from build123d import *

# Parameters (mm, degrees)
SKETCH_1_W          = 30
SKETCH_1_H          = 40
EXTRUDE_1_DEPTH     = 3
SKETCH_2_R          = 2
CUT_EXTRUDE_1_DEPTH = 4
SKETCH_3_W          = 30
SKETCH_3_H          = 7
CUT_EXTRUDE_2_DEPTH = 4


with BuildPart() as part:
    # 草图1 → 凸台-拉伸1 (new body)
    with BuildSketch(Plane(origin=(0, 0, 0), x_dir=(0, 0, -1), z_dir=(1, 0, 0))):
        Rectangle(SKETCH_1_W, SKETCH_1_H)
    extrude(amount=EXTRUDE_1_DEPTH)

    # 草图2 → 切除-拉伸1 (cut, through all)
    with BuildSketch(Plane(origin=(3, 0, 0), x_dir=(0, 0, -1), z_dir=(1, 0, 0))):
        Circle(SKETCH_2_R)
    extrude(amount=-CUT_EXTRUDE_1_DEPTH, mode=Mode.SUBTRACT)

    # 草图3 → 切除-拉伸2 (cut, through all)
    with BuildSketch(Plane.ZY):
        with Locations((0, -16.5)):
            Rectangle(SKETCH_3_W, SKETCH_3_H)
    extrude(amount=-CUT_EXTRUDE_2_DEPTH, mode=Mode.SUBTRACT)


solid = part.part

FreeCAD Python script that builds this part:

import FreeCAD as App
import Part
import Sketcher
Q = App.Units.Quantity


def add_polygon(sketch, points):
    """Adds a closed chain of lines whose ends are joined by coincident constraints."""
    first, n = sketch.GeometryCount, len(points)
    for a, b in zip(points, points[1:] + points[:1]):
        sketch.addGeometry(Part.LineSegment(App.Vector(*a, 0), App.Vector(*b, 0)), False)
    for i in range(n):
        sketch.addConstraint(Sketcher.Constraint("Coincident", first + i, 2, first + (i + 1) % n, 1))

doc = App.newDocument("Part")
body = doc.addObject("PartDesign::Body", "Body")

# Sketch on YZ plane
sketch1 = doc.addObject("Sketcher::SketchObject", "Sketch")
body.addObject(sketch1)
sketch1.AttachmentSupport = (doc.YZ_Plane, [""])
sketch1.MapMode = "FlatFace"
add_polygon(sketch1, [(20, 15), (-20, 15), (-20, -15), (20, -15)])  # lines 0-3
sketch1.addConstraint([
    Sketcher.Constraint("Horizontal", 0),
    Sketcher.Constraint("Vertical", 1),
    Sketcher.Constraint("Horizontal", 2),
    Sketcher.Constraint("Vertical", 3),
    Sketcher.Constraint("Symmetric", 0, 2, 2, 2, -1, 1),
    Sketcher.Constraint("DistanceX", 0, 2, 0, 1, Q("40 mm")),
    Sketcher.Constraint("DistanceY", 1, 2, 1, 1, Q("30 mm")),
])
pad1 = doc.addObject("PartDesign::Pad", "Pad")
body.addObject(pad1)
pad1.Profile = sketch1
pad1.Length = 3

# Sketch on YZ plane
sketch2 = doc.addObject("Sketcher::SketchObject", "Sketch001")
body.addObject(sketch2)
sketch2.AttachmentSupport = (doc.YZ_Plane, [""])
sketch2.MapMode = "FlatFace"
sketch2.AttachmentOffset = App.Placement(App.Vector(0, 0, 3), App.Rotation())
sketch2.addGeometry(Part.Circle(App.Vector(0, 0, 0), App.Vector(0, 0, 1), 2), False)
sketch2.addConstraint([
    Sketcher.Constraint("Coincident", 0, 3, -1, 1),
    Sketcher.Constraint("Diameter", 0, Q("4 mm")),
])
pocket1 = doc.addObject("PartDesign::Pocket", "Pocket")
body.addObject(pocket1)
pocket1.Profile = sketch2
pocket1.Type = "ThroughAll"

# Sketch on YZ plane
sketch3 = doc.addObject("Sketcher::SketchObject", "Sketch002")
body.addObject(sketch3)
sketch3.AttachmentSupport = (doc.YZ_Plane, [""])
sketch3.MapMode = "FlatFace"
add_polygon(sketch3, [(-13, -15), (-20, -15), (-20, 15), (-13, 15)])  # lines 0-3
sketch3.addConstraint([
    Sketcher.Constraint("Horizontal", 0),
    Sketcher.Constraint("Vertical", 1),
    Sketcher.Constraint("Horizontal", 2),
    Sketcher.Constraint("Vertical", 3),
    Sketcher.Constraint("DistanceX", 0, 2, 0, 1, Q("7 mm")),
    Sketcher.Constraint("DistanceY", 1, 1, 1, 2, Q("30 mm")),
    Sketcher.Constraint("DistanceX", 0, 2, -1, 1, Q("20 mm")),
    Sketcher.Constraint("DistanceY", 0, 2, -1, 1, Q("15 mm")),
])
pocket2 = doc.addObject("PartDesign::Pocket", "Pocket001")
body.addObject(pocket2)
pocket2.Profile = sketch3
pocket2.Type = "ThroughAll"
pocket2.Reversed = True

doc.recompute()
